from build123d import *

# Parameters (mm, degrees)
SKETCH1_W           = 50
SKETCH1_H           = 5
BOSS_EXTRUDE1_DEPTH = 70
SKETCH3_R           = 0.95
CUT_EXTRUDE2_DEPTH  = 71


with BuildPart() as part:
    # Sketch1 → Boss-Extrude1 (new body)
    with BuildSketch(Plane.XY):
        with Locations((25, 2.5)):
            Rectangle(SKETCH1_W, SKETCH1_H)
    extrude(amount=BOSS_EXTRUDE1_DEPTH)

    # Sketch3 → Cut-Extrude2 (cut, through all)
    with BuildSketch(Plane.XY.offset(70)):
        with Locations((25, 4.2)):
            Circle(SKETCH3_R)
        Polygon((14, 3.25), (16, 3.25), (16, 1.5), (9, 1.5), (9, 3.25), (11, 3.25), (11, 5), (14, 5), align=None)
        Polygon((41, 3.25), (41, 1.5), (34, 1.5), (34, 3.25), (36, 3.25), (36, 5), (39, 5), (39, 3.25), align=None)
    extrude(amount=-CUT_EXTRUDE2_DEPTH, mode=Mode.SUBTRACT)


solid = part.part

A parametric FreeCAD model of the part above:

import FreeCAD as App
import Part
import Sketcher


def add_polygon(sketch, points):
    """Adds a closed chain of lines whose ends are joined by coincident constraints."""
    first, n = sketch.GeometryCount, len(points)
    for a, b in zip(points, points[1:] + points[:1]):
        sketch.addGeometry(Part.LineSegment(App.Vector(*a, 0), App.Vector(*b, 0)), False)
    for i in range(n):
        sketch.addConstraint(Sketcher.Constraint("Coincident", first + i, 2, first + (i + 1) % n, 1))

doc = App.newDocument("Part")
body = doc.addObject("PartDesign::Body", "Body")

sketch1 = body.newObject("Sketcher::SketchObject", "Sketch")
sketch1.AttachmentSupport = (doc.getObject("XY_Plane"), [""])
sketch1.MapMode = "FlatFace"
add_polygon(sketch1, [(0, 5), (0, 0), (50, 0), (50, 5)])
sketch1.addConstraint([
    Sketcher.Constraint("Vertical", 0),
    Sketcher.Constraint("Horizontal", 1),
    Sketcher.Constraint("Vertical", 2),
    Sketcher.Constraint("Horizontal", 3),
    Sketcher.Constraint("Coincident", 0, 2, -1, 1),
    Sketcher.Constraint("DistanceX", 1, 1, 1, 2, 50.0),
    Sketcher.Constraint("DistanceY", 0, 2, 0, 1, 5.0),
])
pad1 = body.newObject("PartDesign::Pad", "Pad")
pad1.Profile = sketch1
pad1.Length = 70

sketch2 = body.newObject("Sketcher::SketchObject", "Sketch001")
sketch2.AttachmentSupport = (doc.getObject("XY_Plane"), [""])
sketch2.MapMode = "FlatFace"
sketch2.AttachmentOffset = App.Placement(App.Vector(0, 0, 70), App.Rotation())
sketch2.addGeometry(Part.Circle(App.Vector(25, 4.2, 0), App.Vector(0, 0, 1), 0.9), False)
add_polygon(sketch2, [(16, 3.2), (14, 3.2), (14, 5), (11, 5), (11, 3.2), (9, 3.2), (9, 1.5), (16, 1.5)])
add_polygon(sketch2, [(41, 1.5), (41, 3.2), (39, 3.2), (39, 5), (36, 5), (36, 3.2), (34, 3.2), (34, 1.5)])
sketch2.addConstraint([
    Sketcher.Constraint("Horizontal", 1),
    Sketcher.Constraint("Vertical", 2),
    Sketcher.Constraint("Horizontal", 3),
    Sketcher.Constraint("Vertical", 4),
    Sketcher.Constraint("Horizontal", 5),
    Sketcher.Constraint("Vertical", 6),
    Sketcher.Constraint("Horizontal", 7),
    Sketcher.Constraint("Vertical", 8),
    Sketcher.Constraint("Vertical", 9),
    Sketcher.Constraint("Horizontal", 10),
    Sketcher.Constraint("Vertical", 11),
    Sketcher.Constraint("Horizontal", 12),
    Sketcher.Constraint("Vertical", 13),
    Sketcher.Constraint("Horizontal", 14),
    Sketcher.Constraint("Vertical", 15),
    Sketcher.Constraint("Horizontal", 16),
    Sketcher.Constraint("Horizontal", 1, 2, 4, 2),
    Sketcher.Constraint("Horizontal", 8, 2, 9, 2),
    Sketcher.Constraint("Horizontal", 3, 2, 11, 2),
    Sketcher.Constraint("Horizontal", 10, 2, 13, 2),
    Sketcher.Constraint("Horizontal", 7, 2, 15, 2),
    Sketcher.Constraint("Equal", 1, 5),
    Sketcher.Constraint("Equal", 5, 10),
    Sketcher.Constraint("Equal", 3, 12),
    Sketcher.Constraint("Equal", 10, 14),
    Sketcher.Constraint("Equal", 4, 6),
    Sketcher.Constraint("Diameter", 0, 1.9),
    Sketcher.Constraint("DistanceX", 1, 2, 1, 1, 2.0),
    Sketcher.Constraint("DistanceX", 3, 2, 3, 1, 3.0),
    Sketcher.Constraint("DistanceX", -1, 1, 0, 3, 25.0),
    Sketcher.Constraint("DistanceX", -1, 1, 1, 2, 14.0),
    Sketcher.Constraint("DistanceY", -1, 1, 2, 2, 5.0),
    Sketcher.Constraint("DistanceX", -1, 1, 9, 2, 41.0),
    Sketcher.Constraint("DistanceY", 2, 1, 2, 2, 1.75),
    Sketcher.Constraint("DistanceY", -1, 1, 0, 3, 4.2),
])
pocket1 = body.newObject("PartDesign::Pocket", "Pocket")
pocket1.Profile = sketch2
pocket1.Type = "ThroughAll"

doc.recompute()
